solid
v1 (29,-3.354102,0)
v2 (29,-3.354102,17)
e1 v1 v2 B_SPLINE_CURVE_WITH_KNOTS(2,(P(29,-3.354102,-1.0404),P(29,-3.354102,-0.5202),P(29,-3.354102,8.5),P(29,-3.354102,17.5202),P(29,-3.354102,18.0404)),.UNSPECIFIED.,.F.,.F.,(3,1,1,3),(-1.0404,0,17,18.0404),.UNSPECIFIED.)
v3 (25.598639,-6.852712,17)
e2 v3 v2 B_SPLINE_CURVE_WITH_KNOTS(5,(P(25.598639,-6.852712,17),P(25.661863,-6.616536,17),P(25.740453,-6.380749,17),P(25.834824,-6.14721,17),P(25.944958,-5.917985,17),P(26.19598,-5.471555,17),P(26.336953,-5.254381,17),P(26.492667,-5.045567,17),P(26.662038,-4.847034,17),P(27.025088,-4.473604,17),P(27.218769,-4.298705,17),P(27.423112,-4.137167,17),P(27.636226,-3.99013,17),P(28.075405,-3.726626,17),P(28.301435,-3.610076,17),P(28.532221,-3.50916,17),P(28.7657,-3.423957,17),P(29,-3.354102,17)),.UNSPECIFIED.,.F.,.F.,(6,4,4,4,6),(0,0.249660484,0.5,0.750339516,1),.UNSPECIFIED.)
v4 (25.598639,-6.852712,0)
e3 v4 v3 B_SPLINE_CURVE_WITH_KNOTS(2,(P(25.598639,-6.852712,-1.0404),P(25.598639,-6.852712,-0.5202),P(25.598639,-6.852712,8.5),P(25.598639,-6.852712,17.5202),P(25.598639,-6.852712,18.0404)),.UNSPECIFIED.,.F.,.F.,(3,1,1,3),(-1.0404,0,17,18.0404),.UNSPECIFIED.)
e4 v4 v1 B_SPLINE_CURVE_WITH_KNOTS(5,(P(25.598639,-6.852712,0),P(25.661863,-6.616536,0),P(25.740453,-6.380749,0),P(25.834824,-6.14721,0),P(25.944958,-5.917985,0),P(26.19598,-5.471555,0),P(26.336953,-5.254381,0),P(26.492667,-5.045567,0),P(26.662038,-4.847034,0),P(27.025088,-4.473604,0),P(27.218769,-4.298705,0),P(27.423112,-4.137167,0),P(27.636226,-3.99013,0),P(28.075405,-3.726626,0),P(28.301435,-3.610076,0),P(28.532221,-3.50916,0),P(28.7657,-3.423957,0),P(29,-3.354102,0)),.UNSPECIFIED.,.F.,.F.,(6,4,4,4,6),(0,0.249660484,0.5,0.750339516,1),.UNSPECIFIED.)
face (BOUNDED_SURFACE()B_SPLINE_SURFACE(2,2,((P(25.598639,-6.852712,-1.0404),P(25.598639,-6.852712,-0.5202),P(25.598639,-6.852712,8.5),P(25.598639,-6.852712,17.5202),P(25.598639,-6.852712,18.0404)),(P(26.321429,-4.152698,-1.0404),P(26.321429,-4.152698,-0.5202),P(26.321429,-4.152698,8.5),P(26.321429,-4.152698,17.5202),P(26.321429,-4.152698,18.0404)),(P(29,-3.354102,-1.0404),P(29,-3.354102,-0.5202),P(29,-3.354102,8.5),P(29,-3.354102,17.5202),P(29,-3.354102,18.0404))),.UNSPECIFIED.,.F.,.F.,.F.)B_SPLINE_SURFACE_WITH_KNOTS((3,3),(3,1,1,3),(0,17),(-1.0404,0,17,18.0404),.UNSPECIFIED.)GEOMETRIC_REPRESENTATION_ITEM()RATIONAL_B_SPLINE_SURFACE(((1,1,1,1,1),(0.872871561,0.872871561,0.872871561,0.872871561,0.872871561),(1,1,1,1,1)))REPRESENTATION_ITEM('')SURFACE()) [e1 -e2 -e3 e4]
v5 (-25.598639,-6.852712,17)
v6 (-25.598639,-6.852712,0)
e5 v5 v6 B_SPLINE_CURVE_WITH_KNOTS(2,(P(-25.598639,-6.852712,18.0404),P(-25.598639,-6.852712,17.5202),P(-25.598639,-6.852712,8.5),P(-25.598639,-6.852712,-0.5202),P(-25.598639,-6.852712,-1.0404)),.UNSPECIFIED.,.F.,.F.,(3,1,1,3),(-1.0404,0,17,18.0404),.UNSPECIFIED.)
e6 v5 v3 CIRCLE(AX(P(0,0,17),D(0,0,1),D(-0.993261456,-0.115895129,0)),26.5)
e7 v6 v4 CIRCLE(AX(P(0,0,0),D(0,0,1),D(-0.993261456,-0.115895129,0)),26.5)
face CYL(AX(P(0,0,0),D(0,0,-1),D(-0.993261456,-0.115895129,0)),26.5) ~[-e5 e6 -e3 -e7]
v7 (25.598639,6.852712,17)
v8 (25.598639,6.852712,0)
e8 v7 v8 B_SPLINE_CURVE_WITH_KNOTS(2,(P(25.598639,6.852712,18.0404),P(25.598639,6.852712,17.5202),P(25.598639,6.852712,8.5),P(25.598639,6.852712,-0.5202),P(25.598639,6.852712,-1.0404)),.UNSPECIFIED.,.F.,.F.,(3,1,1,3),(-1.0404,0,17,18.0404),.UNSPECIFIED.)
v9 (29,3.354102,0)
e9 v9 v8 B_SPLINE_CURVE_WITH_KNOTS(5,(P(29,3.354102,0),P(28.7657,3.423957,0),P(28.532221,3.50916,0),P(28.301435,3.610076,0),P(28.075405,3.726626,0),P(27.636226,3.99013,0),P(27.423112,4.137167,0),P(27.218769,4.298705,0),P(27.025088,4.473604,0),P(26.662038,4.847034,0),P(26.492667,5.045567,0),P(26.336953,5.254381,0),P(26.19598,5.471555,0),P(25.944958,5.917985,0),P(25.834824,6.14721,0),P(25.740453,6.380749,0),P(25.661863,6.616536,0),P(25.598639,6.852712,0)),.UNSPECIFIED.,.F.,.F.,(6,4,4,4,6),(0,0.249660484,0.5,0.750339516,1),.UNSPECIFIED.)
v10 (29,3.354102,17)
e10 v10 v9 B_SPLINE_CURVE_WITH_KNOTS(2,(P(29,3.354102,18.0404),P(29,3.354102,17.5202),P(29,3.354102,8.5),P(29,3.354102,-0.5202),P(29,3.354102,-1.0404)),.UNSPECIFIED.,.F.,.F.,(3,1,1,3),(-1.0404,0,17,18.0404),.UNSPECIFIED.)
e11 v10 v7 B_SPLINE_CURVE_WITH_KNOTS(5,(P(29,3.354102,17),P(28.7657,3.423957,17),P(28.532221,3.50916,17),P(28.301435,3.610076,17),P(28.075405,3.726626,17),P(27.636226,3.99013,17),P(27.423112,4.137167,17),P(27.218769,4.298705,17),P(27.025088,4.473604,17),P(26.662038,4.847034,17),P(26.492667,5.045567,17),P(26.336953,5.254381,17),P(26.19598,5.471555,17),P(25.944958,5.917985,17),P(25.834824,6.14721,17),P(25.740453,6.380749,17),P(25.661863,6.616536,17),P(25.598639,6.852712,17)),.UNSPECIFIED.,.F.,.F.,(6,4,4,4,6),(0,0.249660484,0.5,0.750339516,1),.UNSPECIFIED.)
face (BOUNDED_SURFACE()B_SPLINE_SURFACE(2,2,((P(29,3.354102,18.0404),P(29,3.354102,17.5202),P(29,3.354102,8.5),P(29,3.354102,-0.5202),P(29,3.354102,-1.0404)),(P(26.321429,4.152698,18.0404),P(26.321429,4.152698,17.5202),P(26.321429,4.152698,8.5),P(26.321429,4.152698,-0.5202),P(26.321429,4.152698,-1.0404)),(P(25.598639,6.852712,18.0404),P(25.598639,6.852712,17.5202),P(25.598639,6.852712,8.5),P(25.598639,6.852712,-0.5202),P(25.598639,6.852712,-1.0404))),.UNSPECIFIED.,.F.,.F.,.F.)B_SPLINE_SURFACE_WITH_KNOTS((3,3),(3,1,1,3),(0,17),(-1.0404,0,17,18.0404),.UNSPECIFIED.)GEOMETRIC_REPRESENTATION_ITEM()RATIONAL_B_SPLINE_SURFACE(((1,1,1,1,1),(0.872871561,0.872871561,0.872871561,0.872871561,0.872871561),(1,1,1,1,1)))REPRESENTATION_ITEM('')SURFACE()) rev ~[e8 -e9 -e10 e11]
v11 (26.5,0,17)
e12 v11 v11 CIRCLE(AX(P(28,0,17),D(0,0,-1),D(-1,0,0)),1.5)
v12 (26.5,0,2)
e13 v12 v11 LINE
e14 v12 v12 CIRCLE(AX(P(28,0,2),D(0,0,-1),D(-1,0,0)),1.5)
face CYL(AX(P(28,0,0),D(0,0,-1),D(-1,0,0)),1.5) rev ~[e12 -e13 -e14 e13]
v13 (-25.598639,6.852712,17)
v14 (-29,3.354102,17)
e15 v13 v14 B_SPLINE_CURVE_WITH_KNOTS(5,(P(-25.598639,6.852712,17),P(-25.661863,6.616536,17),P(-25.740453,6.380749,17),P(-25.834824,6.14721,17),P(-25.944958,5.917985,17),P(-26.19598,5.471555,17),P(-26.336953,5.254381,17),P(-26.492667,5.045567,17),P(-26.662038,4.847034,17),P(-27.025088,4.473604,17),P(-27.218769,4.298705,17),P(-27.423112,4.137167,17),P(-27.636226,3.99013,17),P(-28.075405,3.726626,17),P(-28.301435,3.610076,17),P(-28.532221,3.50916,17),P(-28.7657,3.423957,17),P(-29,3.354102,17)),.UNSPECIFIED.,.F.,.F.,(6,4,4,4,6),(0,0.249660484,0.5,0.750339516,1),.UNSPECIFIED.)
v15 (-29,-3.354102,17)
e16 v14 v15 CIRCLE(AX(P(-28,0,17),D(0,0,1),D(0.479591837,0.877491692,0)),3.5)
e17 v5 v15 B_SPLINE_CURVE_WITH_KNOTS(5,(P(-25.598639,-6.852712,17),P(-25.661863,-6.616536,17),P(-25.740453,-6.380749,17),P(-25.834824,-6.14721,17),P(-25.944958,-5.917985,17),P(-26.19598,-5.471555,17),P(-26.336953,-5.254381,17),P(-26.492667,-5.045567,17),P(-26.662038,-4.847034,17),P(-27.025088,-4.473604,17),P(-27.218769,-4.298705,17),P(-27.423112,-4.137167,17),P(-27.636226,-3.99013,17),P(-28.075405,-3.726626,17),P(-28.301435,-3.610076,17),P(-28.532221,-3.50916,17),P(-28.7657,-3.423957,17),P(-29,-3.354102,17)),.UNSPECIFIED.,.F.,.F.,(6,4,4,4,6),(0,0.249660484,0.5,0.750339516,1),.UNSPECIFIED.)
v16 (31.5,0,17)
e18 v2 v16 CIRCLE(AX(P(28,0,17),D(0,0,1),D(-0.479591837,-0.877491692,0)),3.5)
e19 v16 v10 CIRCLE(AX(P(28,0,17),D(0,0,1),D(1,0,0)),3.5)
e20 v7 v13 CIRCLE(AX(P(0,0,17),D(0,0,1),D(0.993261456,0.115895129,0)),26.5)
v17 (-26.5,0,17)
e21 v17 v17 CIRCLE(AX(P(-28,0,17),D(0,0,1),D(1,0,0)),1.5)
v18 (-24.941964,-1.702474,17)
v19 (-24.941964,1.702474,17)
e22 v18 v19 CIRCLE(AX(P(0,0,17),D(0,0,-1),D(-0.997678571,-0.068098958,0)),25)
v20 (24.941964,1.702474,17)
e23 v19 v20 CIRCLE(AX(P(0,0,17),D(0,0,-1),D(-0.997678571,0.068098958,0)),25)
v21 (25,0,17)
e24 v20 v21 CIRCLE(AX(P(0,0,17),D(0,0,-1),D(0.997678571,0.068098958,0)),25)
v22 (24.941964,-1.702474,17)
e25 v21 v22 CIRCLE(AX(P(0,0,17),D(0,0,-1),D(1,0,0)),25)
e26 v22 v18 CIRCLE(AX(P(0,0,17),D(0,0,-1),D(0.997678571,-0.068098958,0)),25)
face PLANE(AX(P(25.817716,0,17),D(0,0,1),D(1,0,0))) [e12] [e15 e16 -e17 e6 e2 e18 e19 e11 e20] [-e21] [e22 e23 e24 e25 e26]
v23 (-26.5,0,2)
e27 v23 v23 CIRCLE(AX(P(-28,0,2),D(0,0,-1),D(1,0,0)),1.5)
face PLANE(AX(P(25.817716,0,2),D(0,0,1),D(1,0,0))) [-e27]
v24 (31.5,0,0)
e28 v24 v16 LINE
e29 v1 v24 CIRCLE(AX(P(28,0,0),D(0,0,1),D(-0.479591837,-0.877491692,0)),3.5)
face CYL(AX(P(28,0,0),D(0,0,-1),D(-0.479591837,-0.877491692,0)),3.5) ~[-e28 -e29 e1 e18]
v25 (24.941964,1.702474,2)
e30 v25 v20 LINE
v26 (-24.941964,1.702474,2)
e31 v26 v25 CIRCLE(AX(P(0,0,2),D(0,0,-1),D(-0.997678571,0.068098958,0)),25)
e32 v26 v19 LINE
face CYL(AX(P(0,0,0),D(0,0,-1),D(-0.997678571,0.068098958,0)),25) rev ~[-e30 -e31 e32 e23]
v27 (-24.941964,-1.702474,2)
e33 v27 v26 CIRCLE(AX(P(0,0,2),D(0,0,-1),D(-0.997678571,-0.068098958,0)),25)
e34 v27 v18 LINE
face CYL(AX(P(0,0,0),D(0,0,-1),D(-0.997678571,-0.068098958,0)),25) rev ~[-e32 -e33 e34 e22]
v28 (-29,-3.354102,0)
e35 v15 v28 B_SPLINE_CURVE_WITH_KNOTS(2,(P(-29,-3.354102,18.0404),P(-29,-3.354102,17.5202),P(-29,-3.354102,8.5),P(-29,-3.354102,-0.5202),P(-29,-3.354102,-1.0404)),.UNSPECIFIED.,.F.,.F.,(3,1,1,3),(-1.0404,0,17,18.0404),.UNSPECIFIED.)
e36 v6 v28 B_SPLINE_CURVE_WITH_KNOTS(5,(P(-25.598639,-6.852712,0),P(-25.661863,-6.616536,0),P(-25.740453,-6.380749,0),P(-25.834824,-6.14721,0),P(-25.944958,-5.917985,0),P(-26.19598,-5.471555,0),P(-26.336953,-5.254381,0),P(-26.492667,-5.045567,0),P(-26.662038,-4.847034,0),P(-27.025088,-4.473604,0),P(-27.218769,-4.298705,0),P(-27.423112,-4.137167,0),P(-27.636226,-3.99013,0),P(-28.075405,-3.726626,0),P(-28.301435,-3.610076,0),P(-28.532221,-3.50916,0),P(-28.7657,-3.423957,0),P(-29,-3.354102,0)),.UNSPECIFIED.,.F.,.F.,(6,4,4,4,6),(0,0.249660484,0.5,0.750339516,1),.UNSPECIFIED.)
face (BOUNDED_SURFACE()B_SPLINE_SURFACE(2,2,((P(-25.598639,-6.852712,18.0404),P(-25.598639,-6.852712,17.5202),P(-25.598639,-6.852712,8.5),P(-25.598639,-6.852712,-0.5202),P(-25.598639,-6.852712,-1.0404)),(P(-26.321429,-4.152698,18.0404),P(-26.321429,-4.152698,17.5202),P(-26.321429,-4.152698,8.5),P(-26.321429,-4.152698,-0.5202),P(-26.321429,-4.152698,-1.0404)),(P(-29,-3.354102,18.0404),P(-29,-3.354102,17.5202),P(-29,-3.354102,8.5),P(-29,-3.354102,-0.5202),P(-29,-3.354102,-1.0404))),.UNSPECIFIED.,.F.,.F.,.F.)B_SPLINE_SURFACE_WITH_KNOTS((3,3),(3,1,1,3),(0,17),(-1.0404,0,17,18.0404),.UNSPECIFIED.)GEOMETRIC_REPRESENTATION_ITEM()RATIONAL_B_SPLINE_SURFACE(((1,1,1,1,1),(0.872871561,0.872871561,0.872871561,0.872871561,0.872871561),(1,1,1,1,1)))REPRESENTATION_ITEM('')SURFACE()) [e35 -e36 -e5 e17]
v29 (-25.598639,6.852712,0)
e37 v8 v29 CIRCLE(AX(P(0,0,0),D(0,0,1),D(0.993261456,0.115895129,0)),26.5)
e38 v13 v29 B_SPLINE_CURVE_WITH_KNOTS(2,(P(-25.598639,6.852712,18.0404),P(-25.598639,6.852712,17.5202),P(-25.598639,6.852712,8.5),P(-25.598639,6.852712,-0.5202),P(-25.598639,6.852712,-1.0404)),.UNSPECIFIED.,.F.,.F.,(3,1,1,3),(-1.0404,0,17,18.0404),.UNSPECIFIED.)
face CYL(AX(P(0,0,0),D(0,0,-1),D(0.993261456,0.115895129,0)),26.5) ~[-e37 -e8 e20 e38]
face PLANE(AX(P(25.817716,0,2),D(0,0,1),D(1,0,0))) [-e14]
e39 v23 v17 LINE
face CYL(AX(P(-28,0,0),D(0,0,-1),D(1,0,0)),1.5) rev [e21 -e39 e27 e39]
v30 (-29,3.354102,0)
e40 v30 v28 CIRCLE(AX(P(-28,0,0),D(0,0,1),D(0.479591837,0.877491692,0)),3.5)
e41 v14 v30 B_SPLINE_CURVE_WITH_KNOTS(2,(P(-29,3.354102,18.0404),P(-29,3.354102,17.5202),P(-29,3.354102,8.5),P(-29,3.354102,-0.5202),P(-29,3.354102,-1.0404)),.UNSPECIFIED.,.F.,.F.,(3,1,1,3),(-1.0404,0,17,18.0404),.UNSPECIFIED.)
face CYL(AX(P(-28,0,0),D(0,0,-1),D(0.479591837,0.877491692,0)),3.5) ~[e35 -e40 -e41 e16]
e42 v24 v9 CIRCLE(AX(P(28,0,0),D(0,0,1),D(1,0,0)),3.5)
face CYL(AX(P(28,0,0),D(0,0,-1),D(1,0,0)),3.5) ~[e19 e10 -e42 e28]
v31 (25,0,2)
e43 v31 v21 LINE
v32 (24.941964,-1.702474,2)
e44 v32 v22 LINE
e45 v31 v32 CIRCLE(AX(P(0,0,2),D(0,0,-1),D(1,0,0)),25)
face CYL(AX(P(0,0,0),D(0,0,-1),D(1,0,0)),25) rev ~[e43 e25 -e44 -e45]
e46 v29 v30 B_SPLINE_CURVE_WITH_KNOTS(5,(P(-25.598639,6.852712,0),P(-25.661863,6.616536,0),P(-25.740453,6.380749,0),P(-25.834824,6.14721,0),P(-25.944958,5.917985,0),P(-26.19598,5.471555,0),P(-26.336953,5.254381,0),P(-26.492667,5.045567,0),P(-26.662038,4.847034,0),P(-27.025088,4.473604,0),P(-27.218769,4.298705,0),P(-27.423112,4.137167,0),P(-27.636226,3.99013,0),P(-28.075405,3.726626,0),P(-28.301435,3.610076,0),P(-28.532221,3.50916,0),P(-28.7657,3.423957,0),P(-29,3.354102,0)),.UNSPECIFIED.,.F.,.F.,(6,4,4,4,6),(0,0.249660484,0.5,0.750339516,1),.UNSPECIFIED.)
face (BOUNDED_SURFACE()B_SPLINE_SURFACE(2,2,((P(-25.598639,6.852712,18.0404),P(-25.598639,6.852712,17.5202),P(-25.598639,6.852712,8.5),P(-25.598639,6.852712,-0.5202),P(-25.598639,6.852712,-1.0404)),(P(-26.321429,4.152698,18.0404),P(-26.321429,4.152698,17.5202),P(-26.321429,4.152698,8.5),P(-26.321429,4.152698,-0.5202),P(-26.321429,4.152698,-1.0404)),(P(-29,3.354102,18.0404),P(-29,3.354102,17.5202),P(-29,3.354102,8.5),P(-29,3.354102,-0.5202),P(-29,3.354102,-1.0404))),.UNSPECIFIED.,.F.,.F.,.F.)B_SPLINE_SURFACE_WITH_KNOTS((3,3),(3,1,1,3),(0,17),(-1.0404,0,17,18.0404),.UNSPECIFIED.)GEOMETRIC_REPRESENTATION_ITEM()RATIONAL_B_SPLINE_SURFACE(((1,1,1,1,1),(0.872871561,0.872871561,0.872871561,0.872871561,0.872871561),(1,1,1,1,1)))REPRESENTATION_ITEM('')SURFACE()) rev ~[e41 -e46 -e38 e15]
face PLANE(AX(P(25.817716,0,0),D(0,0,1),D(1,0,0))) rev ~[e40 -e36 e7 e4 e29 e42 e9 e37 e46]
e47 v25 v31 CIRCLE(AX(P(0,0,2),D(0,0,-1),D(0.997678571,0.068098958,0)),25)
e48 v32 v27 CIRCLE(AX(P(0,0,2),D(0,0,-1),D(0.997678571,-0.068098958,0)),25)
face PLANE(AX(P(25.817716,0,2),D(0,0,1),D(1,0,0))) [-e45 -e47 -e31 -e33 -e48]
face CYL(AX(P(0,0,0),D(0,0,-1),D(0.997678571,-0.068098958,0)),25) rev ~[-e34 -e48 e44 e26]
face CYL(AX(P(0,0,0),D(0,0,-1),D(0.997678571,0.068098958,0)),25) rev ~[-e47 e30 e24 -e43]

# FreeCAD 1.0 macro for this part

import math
import FreeCAD as App
import Part
import Sketcher
Q = App.Units.Quantity


def edges_at(feature, points):
    """Names of the edges that pass closest to the given points."""
    edges = feature.Shape.Edges
    near = lambda p: min(range(len(edges)), key=lambda i: edges[i].distToShape(Part.Vertex(*p))[0])
    return sorted({f"Edge{near(p) + 1}" for p in points})

doc = App.newDocument("Part")
body = doc.addObject("PartDesign::Body", "Body")

# Sketch on XY plane
sketch1 = body.newObject("Sketcher::SketchObject", "Sketch")
sketch1.AttachmentSupport = (doc.getObject("XY_Plane"), [""])
sketch1.MapMode = "FlatFace"
sketch1.addGeometry([
    Part.ArcOfCircle(Part.Circle(App.Vector(0, 0, 0), App.Vector(0, 0, 1), 26.5), math.radians(-173), math.radians(-7)),  # 0
    Part.ArcOfCircle(Part.Circle(App.Vector(28, 0, 0), App.Vector(0, 0, 1), 3.5), math.radians(-119), math.radians(0)),  # 1
    Part.ArcOfCircle(Part.Circle(App.Vector(28, 0, 0), App.Vector(0, 0, 1), 3.5), math.radians(0), math.radians(119)),  # 2
    Part.ArcOfCircle(Part.Circle(App.Vector(0, 0, 0), App.Vector(0, 0, 1), 26.5), math.radians(7), math.radians(173)),  # 3
    Part.ArcOfCircle(Part.Circle(App.Vector(-28, 0, 0), App.Vector(0, 0, 1), 3.5), math.radians(61), math.radians(299)),  # 4
    Part.Circle(App.Vector(-28, 0, 0), App.Vector(0, 0, 1), 1.5),  # 5
    Part.ArcOfCircle(Part.Circle(App.Vector(0, 0, 0), App.Vector(0, 0, 1), 25), math.radians(0), math.radians(3.9)),  # 6
    Part.ArcOfCircle(Part.Circle(App.Vector(0, 0, 0), App.Vector(0, 0, 1), 25), math.radians(-3.9), math.radians(0)),  # 7
    Part.ArcOfCircle(Part.Circle(App.Vector(0, 0, 0), App.Vector(0, 0, 1), 25), math.radians(-176), math.radians(-4)),  # 8
    Part.ArcOfCircle(Part.Circle(App.Vector(0, 0, 0), App.Vector(0, 0, 1), 25), math.radians(176.1), math.radians(183.9)),  # 9
    Part.ArcOfCircle(Part.Circle(App.Vector(0, 0, 0), App.Vector(0, 0, 1), 25), math.radians(4), math.radians(176)),  # 10
    Part.Circle(App.Vector(28, 0, 0), App.Vector(0, 0, 1), 1.5),  # 11
], False)
sketch1.addConstraint([
    Sketcher.Constraint("Coincident", 0, 2, 1, 1),
    Sketcher.Constraint("Tangent", 1, 2, 2, 1),
    Sketcher.Constraint("Coincident", 2, 2, 3, 1),
    Sketcher.Constraint("Coincident", 3, 2, 4, 1),
    Sketcher.Constraint("Coincident", 4, 2, 0, 1),
    Sketcher.Constraint("Tangent", 6, 1, 7, 2),
    Sketcher.Constraint("Tangent", 7, 1, 8, 2),
    Sketcher.Constraint("Tangent", 8, 1, 9, 2),
    Sketcher.Constraint("Tangent", 9, 1, 10, 2),
    Sketcher.Constraint("Tangent", 10, 1, 6, 2),
    Sketcher.Constraint("Coincident", 0, 3, -1, 1),
    Sketcher.Constraint("Coincident", 3, 3, -1, 1),
    Sketcher.Constraint("Coincident", 6, 3, -1, 1),
    Sketcher.Constraint("Coincident", 8, 3, -1, 1),
    Sketcher.Constraint("Coincident", 5, 3, 4, 3),
    Sketcher.Constraint("Coincident", 11, 3, 1, 3),
    Sketcher.Constraint("Equal", 1, 2),
    Sketcher.Constraint("Equal", 0, 3),
    Sketcher.Constraint("Equal", 2, 4),
    Sketcher.Constraint("Equal", 5, 11),
    Sketcher.Constraint("Symmetric", 1, 3, 4, 3, -1, 1),
    Sketcher.Constraint("PointOnObject", 1, 3, -1),
    Sketcher.Constraint("PointOnObject", 1, 2, -1),
    Sketcher.Constraint("PointOnObject", 6, 1, -1),
    Sketcher.Constraint("Horizontal", 7, 1, 8, 1),
    Sketcher.Constraint("Horizontal", 9, 1, 10, 1),
    Sketcher.Constraint("Vertical", 8, 1, 9, 1),
    Sketcher.Constraint("Diameter", 5, Q("3 mm")),
    Sketcher.Constraint("Radius", 6, Q("25 mm")),
    Sketcher.Constraint("Radius", 0, Q("26.5 mm")),
    Sketcher.Constraint("Radius", 1, Q("3.5 mm")),
    Sketcher.Constraint("DistanceX", -1, 1, 1, 3, Q("28 mm")),
    Sketcher.Constraint("DistanceX", -1, 1, 7, 1, Q("24.941964 mm")),
])
pad1 = body.newObject("PartDesign::Pad", "Pad")
pad1.Profile = sketch1
pad1.Length = 17

# Sketch on XY plane
sketch2 = body.newObject("Sketcher::SketchObject", "Sketch001")
sketch2.AttachmentSupport = (doc.getObject("XY_Plane"), [""])
sketch2.MapMode = "FlatFace"
sketch2.addGeometry([
    Part.ArcOfCircle(Part.Circle(App.Vector(0, 0, 0), App.Vector(0, 0, 1), 26.5), math.radians(-173), math.radians(-7)),  # 0
    Part.ArcOfCircle(Part.Circle(App.Vector(28, 0, 0), App.Vector(0, 0, 1), 3.5), math.radians(-119), math.radians(0)),  # 1
    Part.ArcOfCircle(Part.Circle(App.Vector(28, 0, 0), App.Vector(0, 0, 1), 3.5), math.radians(0), math.radians(119)),  # 2
    Part.ArcOfCircle(Part.Circle(App.Vector(0, 0, 0), App.Vector(0, 0, 1), 26.5), math.radians(7), math.radians(173)),  # 3
    Part.ArcOfCircle(Part.Circle(App.Vector(-28, 0, 0), App.Vector(0, 0, 1), 3.5), math.radians(61), math.radians(299)),  # 4
], False)
sketch2.addConstraint([
    Sketcher.Constraint("Coincident", 0, 2, 1, 1),
    Sketcher.Constraint("Tangent", 1, 2, 2, 1),
    Sketcher.Constraint("Coincident", 2, 2, 3, 1),
    Sketcher.Constraint("Coincident", 3, 2, 4, 1),
    Sketcher.Constraint("Coincident", 4, 2, 0, 1),
    Sketcher.Constraint("Coincident", 0, 3, -1, 1),
    Sketcher.Constraint("Coincident", 3, 3, -1, 1),
    Sketcher.Constraint("Equal", 1, 2),
    Sketcher.Constraint("Equal", 0, 3),
    Sketcher.Constraint("Equal", 2, 4),
    Sketcher.Constraint("Symmetric", 1, 3, 4, 3, -1, 1),
    Sketcher.Constraint("PointOnObject", 1, 3, -1),
    Sketcher.Constraint("PointOnObject", 1, 2, -1),
    Sketcher.Constraint("Radius", 0, Q("26.5 mm")),
    Sketcher.Constraint("Radius", 1, Q("3.5 mm")),
    Sketcher.Constraint("DistanceX", -1, 1, 1, 3, Q("28 mm")),
])
pad2 = body.newObject("PartDesign::Pad", "Pad001")
pad2.Profile = sketch2
pad2.Length = 2
doc.recompute()

fillet = body.newObject("PartDesign::Fillet", "Fillet")
fillet.Base = (pad2, edges_at(pad2, [
    (-26.321, 3.071, 8.5),
    (-26.321, -3.071, 8.5),
    (26.321, -3.071, 8.5),
    (26.321, 3.071, 8.5),
]))
fillet.Radius = 5

doc.recompute()
